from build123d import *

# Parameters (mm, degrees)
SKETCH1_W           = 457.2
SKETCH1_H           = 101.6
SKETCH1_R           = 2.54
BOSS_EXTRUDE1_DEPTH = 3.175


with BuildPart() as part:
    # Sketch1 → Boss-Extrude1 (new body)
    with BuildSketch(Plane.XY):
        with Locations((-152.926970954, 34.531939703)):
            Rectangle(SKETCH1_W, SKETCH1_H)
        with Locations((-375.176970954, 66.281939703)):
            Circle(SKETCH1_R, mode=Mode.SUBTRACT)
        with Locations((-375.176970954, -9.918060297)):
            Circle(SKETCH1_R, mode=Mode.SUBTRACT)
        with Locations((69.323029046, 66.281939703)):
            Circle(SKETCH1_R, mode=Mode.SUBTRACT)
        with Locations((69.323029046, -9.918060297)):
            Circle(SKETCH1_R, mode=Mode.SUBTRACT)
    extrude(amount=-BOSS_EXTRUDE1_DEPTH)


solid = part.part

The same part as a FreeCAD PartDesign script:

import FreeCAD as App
import Part
import Sketcher

V = App.Vector
Q = App.Units.Quantity

doc = App.newDocument("Part")
body = doc.addObject("PartDesign::Body", "Body")

sketch1 = body.newObject("Sketcher::SketchObject", "Sketch")
sketch1.AttachmentSupport = (doc.getObject("XY_Plane"), [""])
sketch1.MapMode = "FlatFace"
sketch1.addGeometry([
    Part.LineSegment(V(-381.5, 85.3, 0), V(-381.5, -16.3, 0)),
    Part.LineSegment(V(-381.5, -16.3, 0), V(75.7, -16.3, 0)),
    Part.LineSegment(V(75.7, -16.3, 0), V(75.7, 85.3, 0)),
    Part.LineSegment(V(75.7, 85.3, 0), V(-381.5, 85.3, 0)),
    Part.Circle(V(-375.2, -9.9, 0), V(0, 0, 1), 2.5),
    Part.Circle(V(69.3, -9.9, 0), V(0, 0, 1), 2.5),
    Part.Circle(V(-375.2, 66.3, 0), V(0, 0, 1), 2.5),
    Part.Circle(V(69.3, 66.3, 0), V(0, 0, 1), 2.5),
], False)
sketch1.addConstraint([
    Sketcher.Constraint("Coincident", 0, 2, 1, 1),
    Sketcher.Constraint("Coincident", 1, 2, 2, 1),
    Sketcher.Constraint("Coincident", 2, 2, 3, 1),
    Sketcher.Constraint("Coincident", 3, 2, 0, 1),
    Sketcher.Constraint("Vertical", 0),
    Sketcher.Constraint("Horizontal", 1),
    Sketcher.Constraint("Vertical", 2),
    Sketcher.Constraint("Horizontal", 3),
    Sketcher.Constraint("Equal", 4, 5),
    Sketcher.Constraint("Equal", 5, 6),
    Sketcher.Constraint("Equal", 6, 7),
    Sketcher.Constraint("Horizontal", 4, 3, 5, 3),
    Sketcher.Constraint("Horizontal", 6, 3, 7, 3),
    Sketcher.Constraint("Vertical", 4, 3, 6, 3),
    Sketcher.Constraint("Vertical", 5, 3, 7, 3),
    Sketcher.Constraint("Diameter", 4, Q("0.2 in")),
    Sketcher.Constraint("DistanceX", 1, 1, 1, 2, Q("18 in")),
    Sketcher.Constraint("DistanceY", 0, 2, 0, 1, Q("4 in")),
    Sketcher.Constraint("DistanceY", 4, 3, 6, 3, Q("3 in")),
    Sketcher.Constraint("DistanceX", 4, 3, 5, 3, Q("17.5 in")),
    Sketcher.Constraint("DistanceX", 0, 2, 4, 3, Q("0.25 in")),
    Sketcher.Constraint("DistanceY", 0, 2, 4, 3, Q("0.25 in")),
    Sketcher.Constraint("DistanceX", 4, 3, -1, 1, 375.176971),
    Sketcher.Constraint("DistanceY", 4, 3, -1, 1, 9.91806),
])
pad1 = body.newObject("PartDesign::Pad", "Pad")
pad1.Profile = sketch1
pad1.Length = Q("0.125 in")
pad1.Reversed = True

doc.recompute()
